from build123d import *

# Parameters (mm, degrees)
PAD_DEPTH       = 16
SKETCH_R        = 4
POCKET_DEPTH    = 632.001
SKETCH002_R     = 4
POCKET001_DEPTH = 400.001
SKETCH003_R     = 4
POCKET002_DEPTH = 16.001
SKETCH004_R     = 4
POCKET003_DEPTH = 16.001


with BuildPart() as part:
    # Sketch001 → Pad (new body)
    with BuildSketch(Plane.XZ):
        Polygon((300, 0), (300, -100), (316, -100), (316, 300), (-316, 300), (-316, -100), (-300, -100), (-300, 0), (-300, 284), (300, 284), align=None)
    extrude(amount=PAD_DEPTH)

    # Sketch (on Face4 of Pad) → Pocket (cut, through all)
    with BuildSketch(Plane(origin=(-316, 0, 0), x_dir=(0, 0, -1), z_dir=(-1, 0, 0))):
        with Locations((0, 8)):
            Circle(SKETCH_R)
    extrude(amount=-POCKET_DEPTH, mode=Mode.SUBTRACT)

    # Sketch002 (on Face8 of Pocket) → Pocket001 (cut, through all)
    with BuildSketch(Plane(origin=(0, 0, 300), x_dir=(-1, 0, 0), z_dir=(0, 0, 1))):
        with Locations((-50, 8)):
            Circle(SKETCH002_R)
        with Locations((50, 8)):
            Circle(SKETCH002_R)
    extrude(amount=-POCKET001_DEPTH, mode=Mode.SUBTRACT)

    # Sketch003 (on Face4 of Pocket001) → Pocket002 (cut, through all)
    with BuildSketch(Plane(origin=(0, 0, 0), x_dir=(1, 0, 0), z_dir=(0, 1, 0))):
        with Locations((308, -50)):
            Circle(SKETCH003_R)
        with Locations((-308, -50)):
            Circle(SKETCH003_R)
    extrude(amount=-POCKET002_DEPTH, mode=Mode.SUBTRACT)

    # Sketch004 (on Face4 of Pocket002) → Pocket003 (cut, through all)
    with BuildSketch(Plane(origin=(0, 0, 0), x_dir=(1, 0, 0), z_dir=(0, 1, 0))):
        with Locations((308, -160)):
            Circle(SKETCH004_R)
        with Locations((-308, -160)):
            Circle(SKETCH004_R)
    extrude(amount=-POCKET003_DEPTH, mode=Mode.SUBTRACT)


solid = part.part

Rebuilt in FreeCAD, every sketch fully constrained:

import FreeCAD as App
import Part
import Sketcher
from FreeCAD import Vector

doc = App.newDocument("Part")
params = doc.addObject("Spreadsheet::Sheet", "Params")
for row, (alias, value) in enumerate([
    ("sketch1_width", "16 mm"),
    ("sketch1_width2", "632 mm"),
    ("sketch1_height", "400 mm"),
    ("sketch1_height2", "384 mm"),
    ("pad1_length", "16 mm"),
    ("sketch2_diameter", "8 mm"),
    ("sketch3_diameter", "8 mm"),
    ("sketch4_diameter", "8 mm"),
    ("sketch5_diameter", "8 mm"),
], start=1):
    params.set(f"A{row}", alias)
    params.set(f"B{row}", "=" + value)
    params.setAlias(f"B{row}", alias)

body = doc.addObject("PartDesign::Body", "Body")

sketch1 = doc.addObject("Sketcher::SketchObject", "Sketch")
body.addObject(sketch1)
sketch1.AttachmentSupport = (doc.XZ_Plane, [""])
sketch1.MapMode = "FlatFace"
sketch1.addGeometry([
    Part.LineSegment(Vector(300, -100, 0), Vector(316, -100, 0)),
    Part.LineSegment(Vector(316, -100, 0), Vector(316, 300, 0)),
    Part.LineSegment(Vector(316, 300, 0), Vector(-316, 300, 0)),
    Part.LineSegment(Vector(-316, 300, 0), Vector(-316, -100, 0)),
    Part.LineSegment(Vector(-316, -100, 0), Vector(-300, -100, 0)),
    Part.LineSegment(Vector(-300, -100, 0), Vector(-300, 284, 0)),
    Part.LineSegment(Vector(-300, 284, 0), Vector(300, 284, 0)),
    Part.LineSegment(Vector(300, 284, 0), Vector(300, -100, 0)),
], False)
sketch1.addConstraint([
    Sketcher.Constraint("Coincident", 0, 2, 1, 1),
    Sketcher.Constraint("Coincident", 1, 2, 2, 1),
    Sketcher.Constraint("Coincident", 2, 2, 3, 1),
    Sketcher.Constraint("Coincident", 3, 2, 4, 1),
    Sketcher.Constraint("Coincident", 4, 2, 5, 1),
    Sketcher.Constraint("Coincident", 5, 2, 6, 1),
    Sketcher.Constraint("Coincident", 6, 2, 7, 1),
    Sketcher.Constraint("Coincident", 7, 2, 0, 1),
    Sketcher.Constraint("Horizontal", 0),
    Sketcher.Constraint("Vertical", 1),
    Sketcher.Constraint("Horizontal", 2),
    Sketcher.Constraint("Vertical", 3),
    Sketcher.Constraint("Horizontal", 4),
    Sketcher.Constraint("Vertical", 5),
    Sketcher.Constraint("Horizontal", 6),
    Sketcher.Constraint("Vertical", 7),
    Sketcher.Constraint("Symmetric", 0, 2, 3, 2, -2),
    Sketcher.Constraint("Equal", 0, 4),
    Sketcher.Constraint("DistanceX", 0, 1, 0, 2, 16.0),
    Sketcher.Constraint("DistanceX", 2, 2, 2, 1, 632.0),
    Sketcher.Constraint("DistanceY", 1, 1, 1, 2, 400.0),
    Sketcher.Constraint("DistanceY", 5, 1, 5, 2, 384.0),
    Sketcher.Constraint("DistanceY", 0, 2, -1, 1, 100.0),
])
sketch1.setExpression("Constraints[18]", "Params.sketch1_width")
sketch1.setExpression("Constraints[19]", "Params.sketch1_width2")
sketch1.setExpression("Constraints[20]", "Params.sketch1_height")
sketch1.setExpression("Constraints[21]", "Params.sketch1_height2")
pad1 = doc.addObject("PartDesign::Pad", "Pad")
body.addObject(pad1)
pad1.Profile = sketch1
pad1.setExpression("Length", "Params.pad1_length")

sketch2 = doc.addObject("Sketcher::SketchObject", "Sketch001")
body.addObject(sketch2)
sketch2.AttachmentSupport = (doc.YZ_Plane, [""])
sketch2.MapMode = "FlatFace"
sketch2.AttachmentOffset = App.Placement(Vector(0, 0, -316), App.Rotation())
sketch2.addGeometry(Part.Circle(Vector(-8, 0, 0), Vector(0, 0, 1), 4), False)
sketch2.addConstraint([
    Sketcher.Constraint("PointOnObject", 0, 3, -1),
    Sketcher.Constraint("Diameter", 0, 8.0),
    Sketcher.Constraint("DistanceX", 0, 3, -1, 1, 8.0),
])
sketch2.setExpression("Constraints[1]", "Params.sketch2_diameter")
pocket1 = doc.addObject("PartDesign::Pocket", "Pocket")
body.addObject(pocket1)
pocket1.Profile = sketch2
pocket1.Type = "ThroughAll"
pocket1.Reversed = True

sketch3 = doc.addObject("Sketcher::SketchObject", "Sketch002")
body.addObject(sketch3)
sketch3.AttachmentSupport = (doc.XY_Plane, [""])
sketch3.MapMode = "FlatFace"
sketch3.AttachmentOffset = App.Placement(Vector(0, 0, 300), App.Rotation())
sketch3.addGeometry([
    Part.Circle(Vector(50, -8, 0), Vector(0, 0, 1), 4),
    Part.Circle(Vector(-50, -8, 0), Vector(0, 0, 1), 4),
], False)
sketch3.addConstraint([
    Sketcher.Constraint("Equal", 0, 1),
    Sketcher.Constraint("Symmetric", 0, 3, 1, 3, -2),
    Sketcher.Constraint("Diameter", 0, 8.0),
    Sketcher.Constraint("DistanceX", -1, 1, 0, 3, 50.0),
    Sketcher.Constraint("DistanceY", 0, 3, -1, 1, 8.0),
])
sketch3.setExpression("Constraints[2]", "Params.sketch3_diameter")
pocket2 = doc.addObject("PartDesign::Pocket", "Pocket001")
body.addObject(pocket2)
pocket2.Profile = sketch3
pocket2.Type = "ThroughAll"

sketch4 = doc.addObject("Sketcher::SketchObject", "Sketch003")
body.addObject(sketch4)
sketch4.AttachmentSupport = (doc.XZ_Plane, [""])
sketch4.MapMode = "FlatFace"
sketch4.addGeometry([
    Part.Circle(Vector(308, 50, 0), Vector(0, 0, 1), 4),
    Part.Circle(Vector(-308, 50, 0), Vector(0, 0, 1), 4),
], False)
sketch4.addConstraint([
    Sketcher.Constraint("Equal", 0, 1),
    Sketcher.Constraint("Symmetric", 0, 3, 1, 3, -2),
    Sketcher.Constraint("Diameter", 0, 8.0),
    Sketcher.Constraint("DistanceX", -1, 1, 0, 3, 308.0),
    Sketcher.Constraint("DistanceY", -1, 1, 0, 3, 50.0),
])
sketch4.setExpression("Constraints[2]", "Params.sketch4_diameter")
pocket3 = doc.addObject("PartDesign::Pocket", "Pocket002")
body.addObject(pocket3)
pocket3.Profile = sketch4
pocket3.Type = "ThroughAll"
pocket3.Reversed = True

sketch5 = doc.addObject("Sketcher::SketchObject", "Sketch004")
body.addObject(sketch5)
sketch5.AttachmentSupport = (doc.XZ_Plane, [""])
sketch5.MapMode = "FlatFace"
sketch5.addGeometry([
    Part.Circle(Vector(308, 160, 0), Vector(0, 0, 1), 4),
    Part.Circle(Vector(-308, 160, 0), Vector(0, 0, 1), 4),
], False)
sketch5.addConstraint([
    Sketcher.Constraint("Equal", 0, 1),
    Sketcher.Constraint("Symmetric", 0, 3, 1, 3, -2),
    Sketcher.Constraint("Diameter", 0, 8.0),
    Sketcher.Constraint("DistanceX", -1, 1, 0, 3, 308.0),
    Sketcher.Constraint("DistanceY", -1, 1, 0, 3, 160.0),
])
sketch5.setExpression("Constraints[2]", "Params.sketch5_diameter")
pocket4 = doc.addObject("PartDesign::Pocket", "Pocket003")
body.addObject(pocket4)
pocket4.Profile = sketch5
pocket4.Type = "ThroughAll"
pocket4.Reversed = True

doc.recompute()
